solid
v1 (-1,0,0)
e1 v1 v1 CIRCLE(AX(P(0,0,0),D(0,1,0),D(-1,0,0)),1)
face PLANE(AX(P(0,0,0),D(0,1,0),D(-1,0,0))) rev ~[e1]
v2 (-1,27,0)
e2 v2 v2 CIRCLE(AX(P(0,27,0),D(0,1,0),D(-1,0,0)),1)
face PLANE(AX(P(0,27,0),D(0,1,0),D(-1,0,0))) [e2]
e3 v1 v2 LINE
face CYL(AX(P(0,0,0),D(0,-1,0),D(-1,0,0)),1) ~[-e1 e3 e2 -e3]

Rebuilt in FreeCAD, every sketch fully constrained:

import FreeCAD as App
import Part
import Sketcher
from FreeCAD import Vector

doc = App.newDocument("Part")
body = doc.addObject("PartDesign::Body", "Body")

# Sketch on XZ plane
sketch1 = doc.addObject("Sketcher::SketchObject", "Sketch")
body.addObject(sketch1)
sketch1.AttachmentSupport = (doc.XZ_Plane, [""])
sketch1.MapMode = "FlatFace"
sketch1.addGeometry(Part.Circle(Vector(0, 0, 0), Vector(0, 0, 1), 1), False)
sketch1.addConstraint(Sketcher.Constraint("Coincident", 0, 3, -1, 1))
sketch1.addConstraint(Sketcher.Constraint("Diameter", 0, 2.0))
pad1 = doc.addObject("PartDesign::Pad", "Pad")
body.addObject(pad1)
pad1.Profile = sketch1
pad1.Length = 27
pad1.Reversed = True

doc.recompute()
